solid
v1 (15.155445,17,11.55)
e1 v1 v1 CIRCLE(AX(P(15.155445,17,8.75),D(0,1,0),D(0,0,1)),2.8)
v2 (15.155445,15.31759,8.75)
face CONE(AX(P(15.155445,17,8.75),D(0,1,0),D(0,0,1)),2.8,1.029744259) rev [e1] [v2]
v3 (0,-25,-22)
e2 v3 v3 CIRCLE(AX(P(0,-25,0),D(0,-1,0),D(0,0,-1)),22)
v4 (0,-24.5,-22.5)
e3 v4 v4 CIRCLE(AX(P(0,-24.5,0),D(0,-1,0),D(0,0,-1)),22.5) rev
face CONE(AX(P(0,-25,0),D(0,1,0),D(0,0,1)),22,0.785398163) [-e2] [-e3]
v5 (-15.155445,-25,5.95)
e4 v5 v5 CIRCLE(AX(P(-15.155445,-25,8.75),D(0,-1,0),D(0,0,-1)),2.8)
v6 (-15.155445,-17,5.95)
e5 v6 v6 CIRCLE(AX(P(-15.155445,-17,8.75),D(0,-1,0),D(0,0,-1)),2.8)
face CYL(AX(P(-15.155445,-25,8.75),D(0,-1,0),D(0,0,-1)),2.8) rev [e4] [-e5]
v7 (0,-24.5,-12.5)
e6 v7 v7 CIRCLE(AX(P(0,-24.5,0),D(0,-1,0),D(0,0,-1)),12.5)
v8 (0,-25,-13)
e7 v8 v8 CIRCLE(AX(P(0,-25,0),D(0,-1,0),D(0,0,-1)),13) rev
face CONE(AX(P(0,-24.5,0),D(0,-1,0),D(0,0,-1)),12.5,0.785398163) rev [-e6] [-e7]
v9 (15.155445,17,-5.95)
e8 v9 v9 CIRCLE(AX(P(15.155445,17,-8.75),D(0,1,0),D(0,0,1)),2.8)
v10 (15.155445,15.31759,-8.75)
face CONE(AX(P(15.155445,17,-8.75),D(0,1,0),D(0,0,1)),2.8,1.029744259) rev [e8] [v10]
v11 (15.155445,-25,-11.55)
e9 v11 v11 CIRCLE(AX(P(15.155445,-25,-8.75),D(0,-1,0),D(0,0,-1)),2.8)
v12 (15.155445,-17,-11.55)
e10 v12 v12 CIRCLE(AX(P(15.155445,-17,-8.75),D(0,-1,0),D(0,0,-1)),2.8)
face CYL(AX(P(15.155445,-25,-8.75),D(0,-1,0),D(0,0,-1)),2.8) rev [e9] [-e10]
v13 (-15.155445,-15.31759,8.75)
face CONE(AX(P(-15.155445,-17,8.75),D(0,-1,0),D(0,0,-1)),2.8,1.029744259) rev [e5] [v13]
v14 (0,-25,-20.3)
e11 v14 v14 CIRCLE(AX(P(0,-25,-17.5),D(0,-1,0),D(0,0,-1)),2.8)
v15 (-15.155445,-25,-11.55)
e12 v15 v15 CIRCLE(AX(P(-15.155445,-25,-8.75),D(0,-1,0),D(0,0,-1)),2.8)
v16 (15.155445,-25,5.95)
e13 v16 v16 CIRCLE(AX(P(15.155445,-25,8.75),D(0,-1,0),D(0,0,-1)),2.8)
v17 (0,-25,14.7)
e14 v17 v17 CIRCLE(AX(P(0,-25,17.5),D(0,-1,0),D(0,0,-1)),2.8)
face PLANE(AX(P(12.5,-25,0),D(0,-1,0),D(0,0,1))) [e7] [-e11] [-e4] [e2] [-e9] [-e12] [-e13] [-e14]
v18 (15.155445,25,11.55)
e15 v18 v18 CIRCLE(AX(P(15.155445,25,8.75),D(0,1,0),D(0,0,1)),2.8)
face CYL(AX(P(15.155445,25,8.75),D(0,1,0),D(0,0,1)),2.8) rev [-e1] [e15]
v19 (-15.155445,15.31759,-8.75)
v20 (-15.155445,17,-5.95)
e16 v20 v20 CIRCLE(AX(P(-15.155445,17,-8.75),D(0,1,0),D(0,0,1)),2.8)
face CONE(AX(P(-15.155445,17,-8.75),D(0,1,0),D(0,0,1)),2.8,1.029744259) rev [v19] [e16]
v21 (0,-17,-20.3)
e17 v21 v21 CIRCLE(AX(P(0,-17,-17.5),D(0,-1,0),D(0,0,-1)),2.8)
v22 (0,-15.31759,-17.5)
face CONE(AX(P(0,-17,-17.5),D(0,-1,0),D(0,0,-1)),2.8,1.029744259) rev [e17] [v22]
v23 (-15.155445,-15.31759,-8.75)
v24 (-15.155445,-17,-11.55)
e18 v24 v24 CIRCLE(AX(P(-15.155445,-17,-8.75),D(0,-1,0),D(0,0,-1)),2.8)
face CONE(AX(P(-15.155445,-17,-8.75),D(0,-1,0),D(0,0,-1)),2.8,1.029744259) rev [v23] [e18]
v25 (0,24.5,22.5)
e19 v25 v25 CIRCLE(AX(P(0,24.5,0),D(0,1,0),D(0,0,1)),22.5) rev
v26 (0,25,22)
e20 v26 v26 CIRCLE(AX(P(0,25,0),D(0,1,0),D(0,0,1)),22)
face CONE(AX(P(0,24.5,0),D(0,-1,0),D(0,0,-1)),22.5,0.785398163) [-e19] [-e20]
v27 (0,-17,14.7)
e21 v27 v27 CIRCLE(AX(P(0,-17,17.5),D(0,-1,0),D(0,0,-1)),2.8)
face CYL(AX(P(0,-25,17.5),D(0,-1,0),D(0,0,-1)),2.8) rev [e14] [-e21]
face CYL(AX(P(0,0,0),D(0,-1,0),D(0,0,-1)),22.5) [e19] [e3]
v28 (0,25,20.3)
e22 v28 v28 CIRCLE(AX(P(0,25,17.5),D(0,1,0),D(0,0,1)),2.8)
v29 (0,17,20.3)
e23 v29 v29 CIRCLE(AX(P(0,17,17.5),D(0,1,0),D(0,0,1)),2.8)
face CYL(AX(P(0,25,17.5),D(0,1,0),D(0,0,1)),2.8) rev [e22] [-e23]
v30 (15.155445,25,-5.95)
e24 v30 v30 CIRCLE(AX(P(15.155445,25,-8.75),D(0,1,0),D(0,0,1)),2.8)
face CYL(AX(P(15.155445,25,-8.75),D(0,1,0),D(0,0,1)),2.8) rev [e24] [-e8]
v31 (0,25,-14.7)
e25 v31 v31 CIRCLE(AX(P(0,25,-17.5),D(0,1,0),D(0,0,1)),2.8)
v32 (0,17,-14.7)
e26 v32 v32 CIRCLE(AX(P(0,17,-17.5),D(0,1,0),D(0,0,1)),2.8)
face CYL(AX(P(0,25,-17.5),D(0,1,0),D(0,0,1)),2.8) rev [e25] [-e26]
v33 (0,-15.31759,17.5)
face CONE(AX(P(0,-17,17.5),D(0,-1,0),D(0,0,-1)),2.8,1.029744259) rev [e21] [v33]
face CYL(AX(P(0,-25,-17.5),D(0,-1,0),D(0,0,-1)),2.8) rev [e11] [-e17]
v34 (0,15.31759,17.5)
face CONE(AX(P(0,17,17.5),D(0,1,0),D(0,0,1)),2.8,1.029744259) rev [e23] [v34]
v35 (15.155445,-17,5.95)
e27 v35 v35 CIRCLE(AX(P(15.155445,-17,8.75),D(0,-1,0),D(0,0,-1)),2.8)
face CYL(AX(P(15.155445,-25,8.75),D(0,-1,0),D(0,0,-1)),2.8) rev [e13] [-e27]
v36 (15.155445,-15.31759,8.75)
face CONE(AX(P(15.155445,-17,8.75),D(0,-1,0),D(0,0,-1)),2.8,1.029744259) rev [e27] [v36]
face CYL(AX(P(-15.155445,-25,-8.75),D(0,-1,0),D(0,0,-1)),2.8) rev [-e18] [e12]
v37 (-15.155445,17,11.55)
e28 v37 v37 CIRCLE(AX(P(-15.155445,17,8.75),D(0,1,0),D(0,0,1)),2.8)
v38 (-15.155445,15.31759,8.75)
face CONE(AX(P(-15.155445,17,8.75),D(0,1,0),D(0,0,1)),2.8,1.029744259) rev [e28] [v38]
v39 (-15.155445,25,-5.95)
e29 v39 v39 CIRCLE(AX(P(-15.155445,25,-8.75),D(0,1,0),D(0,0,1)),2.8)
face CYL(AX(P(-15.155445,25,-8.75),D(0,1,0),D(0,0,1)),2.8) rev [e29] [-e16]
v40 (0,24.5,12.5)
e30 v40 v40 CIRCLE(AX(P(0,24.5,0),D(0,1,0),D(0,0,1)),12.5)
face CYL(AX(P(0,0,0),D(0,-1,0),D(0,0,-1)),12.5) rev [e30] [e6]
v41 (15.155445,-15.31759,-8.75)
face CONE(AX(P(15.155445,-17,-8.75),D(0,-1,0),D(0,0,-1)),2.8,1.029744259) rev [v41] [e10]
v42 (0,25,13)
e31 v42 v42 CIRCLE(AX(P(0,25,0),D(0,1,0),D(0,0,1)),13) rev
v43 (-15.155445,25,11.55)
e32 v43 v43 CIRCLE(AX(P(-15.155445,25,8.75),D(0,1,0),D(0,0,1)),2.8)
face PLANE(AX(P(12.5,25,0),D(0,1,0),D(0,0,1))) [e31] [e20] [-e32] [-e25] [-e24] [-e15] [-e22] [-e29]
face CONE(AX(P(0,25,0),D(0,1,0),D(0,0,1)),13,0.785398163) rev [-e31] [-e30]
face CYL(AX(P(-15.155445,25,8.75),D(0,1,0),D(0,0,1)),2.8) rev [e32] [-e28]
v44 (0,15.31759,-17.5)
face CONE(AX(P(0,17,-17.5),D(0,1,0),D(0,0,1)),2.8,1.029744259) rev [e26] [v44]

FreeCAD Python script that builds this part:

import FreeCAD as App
import Part
import Sketcher
Q = App.Units.Quantity


def edges_at(feature, points):
    """Names of the edges that pass closest to the given points."""
    edges = feature.Shape.Edges
    near = lambda p: min(range(len(edges)), key=lambda i: edges[i].distToShape(Part.Vertex(*p))[0])
    return sorted({f"Edge{near(p) + 1}" for p in points})


def add_polygon(sketch, points):
    """Adds a closed chain of lines whose ends are joined by coincident constraints."""
    first, n = sketch.GeometryCount, len(points)
    for a, b in zip(points, points[1:] + points[:1]):
        sketch.addGeometry(Part.LineSegment(App.Vector(*a, 0), App.Vector(*b, 0)), False)
    for i in range(n):
        sketch.addConstraint(Sketcher.Constraint("Coincident", first + i, 2, first + (i + 1) % n, 1))

doc = App.newDocument("Part")
body = doc.addObject("PartDesign::Body", "Body")

sketch1 = doc.addObject("Sketcher::SketchObject", "Sketch")
body.addObject(sketch1)
sketch1.AttachmentSupport = (doc.XY_Plane, [""])
sketch1.MapMode = "FlatFace"
add_polygon(sketch1, [(12.5, 25), (12.5, 0), (22.5, 0), (22.5, 25)])
sketch1.addConstraint([
    Sketcher.Constraint("Vertical", 0),
    Sketcher.Constraint("Horizontal", 1),
    Sketcher.Constraint("Vertical", 2),
    Sketcher.Constraint("Horizontal", 3),
    Sketcher.Constraint("PointOnObject", 0, 2, -1),
    Sketcher.Constraint("DistanceX", 1, 1, 1, 2, 10.0),
    Sketcher.Constraint("DistanceY", 0, 2, 0, 1, 25.0),
    Sketcher.Constraint("DistanceX", -1, 1, 0, 2, 12.5),
])
revolution = doc.addObject("PartDesign::Revolution", "Revolution")
body.addObject(revolution)
revolution.Profile = sketch1
revolution.ReferenceAxis = (sketch1, ["V_Axis"])
revolution.Angle = 360

sketch2 = doc.addObject("Sketcher::SketchObject", "Sketch001")
body.addObject(sketch2)
sketch2.AttachmentSupport = (doc.YZ_Plane, [""])
sketch2.MapMode = "FlatFace"
sketch2.AttachmentOffset = App.Placement(App.Vector(0, 0, 15.155445), App.Rotation())
add_polygon(sketch2, [(15.31759, 8.75), (25, 8.75), (25, 11.55), (17, 11.55)])
sketch2.addGeometry(Part.LineSegment(App.Vector(25, 8.75, 0), App.Vector(15.31759, 8.75, 0)), True)
sketch2.addConstraint([
    Sketcher.Constraint("Horizontal", 0),
    Sketcher.Constraint("Vertical", 1),
    Sketcher.Constraint("Horizontal", 2),
    Sketcher.Constraint("Horizontal", 4),
    Sketcher.Constraint("Coincident", 4, 1, 0, 2),
    Sketcher.Constraint("Equal", 0, 4),
    Sketcher.Constraint("DistanceX", 2, 2, 2, 1, 8.0),
    Sketcher.Constraint("Angle", 3, Q("-121 deg")),
    Sketcher.Constraint("DistanceY", 1, 1, 1, 2, 2.8),
    Sketcher.Constraint("DistanceX", -1, 1, 0, 2, 25.0),
    Sketcher.Constraint("DistanceY", -1, 1, 0, 2, 8.75),
])
groove = doc.addObject("PartDesign::Groove", "Groove")
body.addObject(groove)
groove.Profile = sketch2
groove.ReferenceAxis = (sketch2, ["Axis0"])
groove.Angle = 360
doc.recompute()

datumline = doc.addObject("PartDesign::Line", "DatumLine")
body.addObject(datumline)
datumline.Placement = App.Placement(App.Vector(0, 0, 0), App.Rotation(App.Vector(0, 0, 1), App.Vector(-0.866025404, 0, 0.5)))
linearpattern = doc.addObject("PartDesign::LinearPattern", "LinearPattern")
body.addObject(linearpattern)
linearpattern.Originals = [groove]
linearpattern.Direction = (datumline, [""])
linearpattern.Mode = "offset"
linearpattern.Offset = 17.5
linearpattern.Occurrences = 2
body.Tip = linearpattern
doc.recompute()

linearpattern2 = doc.addObject("PartDesign::LinearPattern", "LinearPattern001")
body.addObject(linearpattern2)
linearpattern2.Originals = [groove]
linearpattern2.Direction = (doc.X_Axis, [""])
linearpattern2.Mode = "offset"
linearpattern2.Offset = 30.310889
linearpattern2.Occurrences = 2
linearpattern2.Reversed = True
body.Tip = linearpattern2
doc.recompute()

datumline2 = doc.addObject("PartDesign::Line", "DatumLine001")
body.addObject(datumline2)
datumline2.Placement = App.Placement(App.Vector(0, 0, 0), App.Rotation(App.Vector(0, 0, 1), App.Vector(-0.866025404, 0, -0.5)))
linearpattern3 = doc.addObject("PartDesign::LinearPattern", "LinearPattern002")
body.addObject(linearpattern3)
linearpattern3.Originals = [groove]
linearpattern3.Direction = (datumline2, [""])
linearpattern3.Mode = "offset"
linearpattern3.Offset = 35
linearpattern3.Occurrences = 2
body.Tip = linearpattern3
doc.recompute()

datumline3 = doc.addObject("PartDesign::Line", "DatumLine002")
body.addObject(datumline3)
datumline3.Placement = App.Placement(App.Vector(0, 0, 0), App.Rotation(App.Vector(0, 0, 1), App.Vector(-0.5, 0, -0.866025404)))
linearpattern4 = doc.addObject("PartDesign::LinearPattern", "LinearPattern003")
body.addObject(linearpattern4)
linearpattern4.Originals = [groove]
linearpattern4.Direction = (datumline3, [""])
linearpattern4.Mode = "offset"
linearpattern4.Offset = 30.310889
linearpattern4.Occurrences = 2
body.Tip = linearpattern4
doc.recompute()

linearpattern5 = doc.addObject("PartDesign::LinearPattern", "LinearPattern004")
body.addObject(linearpattern5)
linearpattern5.Originals = [groove]
linearpattern5.Direction = (doc.Z_Axis, [""])
linearpattern5.Mode = "offset"
linearpattern5.Offset = 17.5
linearpattern5.Occurrences = 2
linearpattern5.Reversed = True
body.Tip = linearpattern5
doc.recompute()

mirrored = doc.addObject("PartDesign::Mirrored", "Mirrored")
body.addObject(mirrored)
mirrored.Originals = [revolution, groove]
mirrored.MirrorPlane = (doc.XZ_Plane, [""])
body.Tip = mirrored

sketch3 = doc.addObject("Sketcher::SketchObject", "Sketch002")
body.addObject(sketch3)
sketch3.AttachmentSupport = (doc.YZ_Plane, [""])
sketch3.MapMode = "FlatFace"
add_polygon(sketch3, [(-25, 17.5), (-15.31759, 17.5), (-17, 20.3), (-25, 20.3)])
sketch3.addGeometry(Part.LineSegment(App.Vector(-15.31759, 17.5, 0), App.Vector(-25, 17.5, 0)), True)
sketch3.addConstraint([
    Sketcher.Constraint("Horizontal", 0),
    Sketcher.Constraint("Horizontal", 2),
    Sketcher.Constraint("Vertical", 3),
    Sketcher.Constraint("Horizontal", 4),
    Sketcher.Constraint("Coincident", 4, 1, 0, 2),
    Sketcher.Constraint("Vertical", 2, 2, 4, 2),
    Sketcher.Constraint("DistanceX", 2, 2, 2, 1, 8.0),
    Sketcher.Constraint("Angle", 1, Q("121 deg")),
    Sketcher.Constraint("DistanceY", 3, 2, 3, 1, 2.8),
    Sketcher.Constraint("DistanceX", 1, 2, -1, 1, 17.0),
    Sketcher.Constraint("DistanceY", -1, 1, 0, 2, 17.5),
])
groove2 = doc.addObject("PartDesign::Groove", "Groove001")
body.addObject(groove2)
groove2.Profile = sketch3
groove2.ReferenceAxis = (sketch3, ["Axis0"])
groove2.Angle = 360

sketch4 = doc.addObject("Sketcher::SketchObject", "Sketch003")
body.addObject(sketch4)
sketch4.AttachmentSupport = (doc.YZ_Plane, [""])
sketch4.MapMode = "FlatFace"
sketch4.AttachmentOffset = App.Placement(App.Vector(0, 0, -15.155445), App.Rotation())
add_polygon(sketch4, [(-25, 8.75), (-15.31759, 8.75), (-17, 11.55), (-25, 11.55)])
sketch4.addGeometry(Part.LineSegment(App.Vector(-15.31759, 8.75, 0), App.Vector(-25, 8.75, 0)), True)
sketch4.addConstraint([
    Sketcher.Constraint("Horizontal", 0),
    Sketcher.Constraint("Horizontal", 2),
    Sketcher.Constraint("Vertical", 3),
    Sketcher.Constraint("Horizontal", 4),
    Sketcher.Constraint("Coincident", 4, 1, 0, 2),
    Sketcher.Constraint("Vertical", 2, 2, 4, 2),
    Sketcher.Constraint("DistanceX", 2, 2, 2, 1, 8.0),
    Sketcher.Constraint("Angle", 1, Q("121 deg")),
    Sketcher.Constraint("DistanceY", 3, 2, 3, 1, 2.8),
    Sketcher.Constraint("DistanceX", 1, 2, -1, 1, 17.0),
    Sketcher.Constraint("DistanceY", -1, 1, 0, 2, 8.75),
])
groove3 = doc.addObject("PartDesign::Groove", "Groove002")
body.addObject(groove3)
groove3.Profile = sketch4
groove3.ReferenceAxis = (sketch4, ["Axis0"])
groove3.Angle = 360

sketch5 = doc.addObject("Sketcher::SketchObject", "Sketch004")
body.addObject(sketch5)
sketch5.AttachmentSupport = (doc.YZ_Plane, [""])
sketch5.MapMode = "FlatFace"
sketch5.AttachmentOffset = App.Placement(App.Vector(0, 0, -15.155445), App.Rotation())
add_polygon(sketch5, [(-25, -8.75), (-15.31759, -8.75), (-17, -5.95), (-25, -5.95)])
sketch5.addGeometry(Part.LineSegment(App.Vector(-15.31759, -8.75, 0), App.Vector(-25, -8.75, 0)), True)
sketch5.addConstraint([
    Sketcher.Constraint("Horizontal", 0),
    Sketcher.Constraint("Horizontal", 2),
    Sketcher.Constraint("Vertical", 3),
    Sketcher.Constraint("Horizontal", 4),
    Sketcher.Constraint("Coincident", 4, 1, 0, 2),
    Sketcher.Constraint("Vertical", 2, 2, 4, 2),
    Sketcher.Constraint("DistanceX", 2, 2, 2, 1, 8.0),
    Sketcher.Constraint("Angle", 1, Q("121 deg")),
    Sketcher.Constraint("DistanceY", 3, 2, 3, 1, 2.8),
    Sketcher.Constraint("DistanceX", 1, 2, -1, 1, 17.0),
    Sketcher.Constraint("DistanceY", 0, 2, -1, 1, 8.75),
])
groove4 = doc.addObject("PartDesign::Groove", "Groove003")
body.addObject(groove4)
groove4.Profile = sketch5
groove4.ReferenceAxis = (sketch5, ["Axis0"])
groove4.Angle = 360

sketch6 = doc.addObject("Sketcher::SketchObject", "Sketch005")
body.addObject(sketch6)
sketch6.AttachmentSupport = (doc.YZ_Plane, [""])
sketch6.MapMode = "FlatFace"
add_polygon(sketch6, [(-25, -17.5), (-15.31759, -17.5), (-17, -14.7), (-25, -14.7)])
sketch6.addGeometry(Part.LineSegment(App.Vector(-15.31759, -17.5, 0), App.Vector(-25, -17.5, 0)), True)
sketch6.addConstraint([
    Sketcher.Constraint("Horizontal", 0),
    Sketcher.Constraint("Horizontal", 2),
    Sketcher.Constraint("Vertical", 3),
    Sketcher.Constraint("Horizontal", 4),
    Sketcher.Constraint("Coincident", 4, 1, 0, 2),
    Sketcher.Constraint("Vertical", 2, 2, 4, 2),
    Sketcher.Constraint("DistanceX", 2, 2, 2, 1, 8.0),
    Sketcher.Constraint("Angle", 1, Q("121 deg")),
    Sketcher.Constraint("DistanceY", 3, 2, 3, 1, 2.8),
    Sketcher.Constraint("DistanceX", 1, 2, -1, 1, 17.0),
    Sketcher.Constraint("DistanceY", 0, 2, -1, 1, 17.5),
])
groove5 = doc.addObject("PartDesign::Groove", "Groove004")
body.addObject(groove5)
groove5.Profile = sketch6
groove5.ReferenceAxis = (sketch6, ["Axis0"])
groove5.Angle = 360

sketch7 = doc.addObject("Sketcher::SketchObject", "Sketch006")
body.addObject(sketch7)
sketch7.AttachmentSupport = (doc.YZ_Plane, [""])
sketch7.MapMode = "FlatFace"
sketch7.AttachmentOffset = App.Placement(App.Vector(0, 0, 15.155445), App.Rotation())
add_polygon(sketch7, [(-25, -8.75), (-15.31759, -8.75), (-17, -5.95), (-25, -5.95)])
sketch7.addGeometry(Part.LineSegment(App.Vector(-15.31759, -8.75, 0), App.Vector(-25, -8.75, 0)), True)
sketch7.addConstraint([
    Sketcher.Constraint("Horizontal", 0),
    Sketcher.Constraint("Horizontal", 2),
    Sketcher.Constraint("Vertical", 3),
    Sketcher.Constraint("Horizontal", 4),
    Sketcher.Constraint("Coincident", 4, 1, 0, 2),
    Sketcher.Constraint("Vertical", 2, 2, 4, 2),
    Sketcher.Constraint("DistanceX", 2, 2, 2, 1, 8.0),
    Sketcher.Constraint("Angle", 1, Q("121 deg")),
    Sketcher.Constraint("DistanceY", 3, 2, 3, 1, 2.8),
    Sketcher.Constraint("DistanceX", 1, 2, -1, 1, 17.0),
    Sketcher.Constraint("DistanceY", 0, 2, -1, 1, 8.75),
])
groove6 = doc.addObject("PartDesign::Groove", "Groove005")
body.addObject(groove6)
groove6.Profile = sketch7
groove6.ReferenceAxis = (sketch7, ["Axis0"])
groove6.Angle = 360
doc.recompute()

chamfer = doc.addObject("PartDesign::Chamfer", "Chamfer")
body.addObject(chamfer)
chamfer.Base = (groove6, edges_at(groove6, [
    (0, -25, 12.5),
    (0, -25, 22.5),
    (0, 25, 22.5),
    (0, 25, 12.5),
]))
chamfer.Size = 0.5

doc.recompute()
